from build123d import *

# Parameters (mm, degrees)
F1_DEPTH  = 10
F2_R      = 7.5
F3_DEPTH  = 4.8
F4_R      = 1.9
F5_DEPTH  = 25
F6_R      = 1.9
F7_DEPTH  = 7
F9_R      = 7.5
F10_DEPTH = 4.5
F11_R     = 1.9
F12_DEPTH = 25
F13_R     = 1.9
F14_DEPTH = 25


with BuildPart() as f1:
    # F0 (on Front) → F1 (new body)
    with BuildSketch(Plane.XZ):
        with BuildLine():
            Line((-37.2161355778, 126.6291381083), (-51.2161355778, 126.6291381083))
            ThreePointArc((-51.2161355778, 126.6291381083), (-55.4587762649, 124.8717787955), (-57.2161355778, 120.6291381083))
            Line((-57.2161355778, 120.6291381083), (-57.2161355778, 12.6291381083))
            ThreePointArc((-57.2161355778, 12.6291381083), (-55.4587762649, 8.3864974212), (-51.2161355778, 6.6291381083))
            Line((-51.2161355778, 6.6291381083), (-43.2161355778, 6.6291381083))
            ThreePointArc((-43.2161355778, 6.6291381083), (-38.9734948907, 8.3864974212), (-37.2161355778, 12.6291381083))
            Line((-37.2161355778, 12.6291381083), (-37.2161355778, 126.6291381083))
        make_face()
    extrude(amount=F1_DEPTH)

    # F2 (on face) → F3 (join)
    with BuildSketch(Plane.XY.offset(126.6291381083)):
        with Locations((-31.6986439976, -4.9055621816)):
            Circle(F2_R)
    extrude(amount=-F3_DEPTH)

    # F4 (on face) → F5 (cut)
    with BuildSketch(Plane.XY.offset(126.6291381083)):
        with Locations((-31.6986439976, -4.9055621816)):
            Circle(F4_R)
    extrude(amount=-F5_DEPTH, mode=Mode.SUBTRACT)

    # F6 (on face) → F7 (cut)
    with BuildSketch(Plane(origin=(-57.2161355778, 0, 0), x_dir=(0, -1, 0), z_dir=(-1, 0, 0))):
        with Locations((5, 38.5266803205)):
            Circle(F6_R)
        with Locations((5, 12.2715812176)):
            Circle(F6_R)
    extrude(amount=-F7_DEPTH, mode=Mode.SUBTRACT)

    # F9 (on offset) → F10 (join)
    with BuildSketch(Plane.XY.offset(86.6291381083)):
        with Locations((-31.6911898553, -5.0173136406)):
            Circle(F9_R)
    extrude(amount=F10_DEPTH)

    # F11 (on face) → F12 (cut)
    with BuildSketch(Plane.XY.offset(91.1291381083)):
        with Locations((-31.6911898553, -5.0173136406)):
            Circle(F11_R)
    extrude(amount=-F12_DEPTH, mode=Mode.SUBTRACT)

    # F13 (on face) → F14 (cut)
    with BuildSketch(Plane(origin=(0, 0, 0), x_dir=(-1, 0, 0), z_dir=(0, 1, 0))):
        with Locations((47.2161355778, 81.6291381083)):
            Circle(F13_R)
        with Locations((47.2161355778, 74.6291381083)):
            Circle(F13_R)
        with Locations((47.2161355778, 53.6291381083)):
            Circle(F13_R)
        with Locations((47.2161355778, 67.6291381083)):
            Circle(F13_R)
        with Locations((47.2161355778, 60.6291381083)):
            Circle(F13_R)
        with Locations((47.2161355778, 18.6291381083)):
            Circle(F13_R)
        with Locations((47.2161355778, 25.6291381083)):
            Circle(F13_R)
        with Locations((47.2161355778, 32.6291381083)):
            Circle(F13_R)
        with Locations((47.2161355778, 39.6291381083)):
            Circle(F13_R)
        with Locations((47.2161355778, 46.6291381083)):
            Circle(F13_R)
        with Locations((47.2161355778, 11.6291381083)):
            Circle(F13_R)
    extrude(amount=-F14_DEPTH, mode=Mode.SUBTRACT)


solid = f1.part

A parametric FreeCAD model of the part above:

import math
import FreeCAD as App
import Part
import Sketcher

V = App.Vector
Q = App.Units.Quantity

doc = App.newDocument("Part")
body = doc.addObject("PartDesign::Body", "Body")

sketch1 = body.newObject("Sketcher::SketchObject", "Sketch")
sketch1.AttachmentSupport = (doc.getObject("XZ_Plane"), [""])
sketch1.MapMode = "FlatFace"
sketch1.addGeometry(Part.LineSegment(V(-37, 127, 0), V(-51, 127, 0)), False)
sketch1.addGeometry(Part.ArcOfCircle(Part.Circle(V(-51, 121, 0), V(0, 0, 1), 6), math.radians(90), math.radians(180)), False)
sketch1.addGeometry(Part.LineSegment(V(-57, 121, 0), V(-57, 13, 0)), False)
sketch1.addGeometry(Part.ArcOfCircle(Part.Circle(V(-51, 13, 0), V(0, 0, 1), 6), math.radians(180), math.radians(270)), False)
sketch1.addGeometry(Part.LineSegment(V(-51, 7, 0), V(-43, 7, 0)), False)
sketch1.addGeometry(Part.ArcOfCircle(Part.Circle(V(-43, 13, 0), V(0, 0, 1), 6), math.radians(-90), math.radians(0)), False)
sketch1.addGeometry(Part.LineSegment(V(-37, 13, 0), V(-37, 127, 0)), False)
sketch1.addConstraint(Sketcher.Constraint("Tangent", 0, 2, 1, 1))
sketch1.addConstraint(Sketcher.Constraint("Tangent", 1, 2, 2, 1))
sketch1.addConstraint(Sketcher.Constraint("Tangent", 2, 2, 3, 1))
sketch1.addConstraint(Sketcher.Constraint("Tangent", 3, 2, 4, 1))
sketch1.addConstraint(Sketcher.Constraint("Tangent", 4, 2, 5, 1))
sketch1.addConstraint(Sketcher.Constraint("Tangent", 5, 2, 6, 1))
sketch1.addConstraint(Sketcher.Constraint("Coincident", 6, 2, 0, 1))
sketch1.addConstraint(Sketcher.Constraint("Horizontal", 0))
sketch1.addConstraint(Sketcher.Constraint("Vertical", 2))
sketch1.addConstraint(Sketcher.Constraint("Horizontal", 4))
sketch1.addConstraint(Sketcher.Constraint("Vertical", 6))
sketch1.addConstraint(Sketcher.Constraint("Equal", 1, 3))
sketch1.addConstraint(Sketcher.Constraint("Equal", 3, 5))
sketch1.addConstraint(Sketcher.Constraint("Radius", 1, Q("6 mm")))
sketch1.addConstraint(Sketcher.Constraint("DistanceX", 0, 2, 0, 1, Q("14 mm")))
sketch1.addConstraint(Sketcher.Constraint("DistanceY", 2, 2, 2, 1, Q("108 mm")))
sketch1.addConstraint(Sketcher.Constraint("DistanceY", -1, 1, 1, 3, Q("120.629138 mm")))
sketch1.addConstraint(Sketcher.Constraint("DistanceX", 1, 3, -1, 1, Q("51.216136 mm")))
pad1 = body.newObject("PartDesign::Pad", "Pad")
pad1.Profile = sketch1
pad1.Length = 10

sketch2 = body.newObject("Sketcher::SketchObject", "Sketch001")
sketch2.AttachmentSupport = (doc.getObject("XY_Plane"), [""])
sketch2.MapMode = "FlatFace"
sketch2.AttachmentOffset = App.Placement(V(0, 0, 126.629138), App.Rotation())
sketch2.addGeometry(Part.Circle(V(-32, -5, 0), V(0, 0, 1), 8), False)
sketch2.addConstraint(Sketcher.Constraint("Diameter", 0, Q("15 mm")))
sketch2.addConstraint(Sketcher.Constraint("DistanceX", 0, 3, -1, 1, Q("31.698644 mm")))
sketch2.addConstraint(Sketcher.Constraint("DistanceY", 0, 3, -1, 1, Q("4.905562 mm")))
pad2 = body.newObject("PartDesign::Pad", "Pad001")
pad2.Profile = sketch2
pad2.Length = 4.8
pad2.Reversed = True

sketch3 = body.newObject("Sketcher::SketchObject", "Sketch002")
sketch3.AttachmentSupport = (doc.getObject("XY_Plane"), [""])
sketch3.MapMode = "FlatFace"
sketch3.AttachmentOffset = App.Placement(V(0, 0, 126.629138), App.Rotation())
sketch3.addGeometry(Part.Circle(V(-31.7, -4.9, 0), V(0, 0, 1), 1.9), False)
sketch3.addConstraint(Sketcher.Constraint("Diameter", 0, Q("3.8 mm")))
sketch3.addConstraint(Sketcher.Constraint("DistanceX", 0, 3, -1, 1, Q("31.698644 mm")))
sketch3.addConstraint(Sketcher.Constraint("DistanceY", 0, 3, -1, 1, Q("4.905562 mm")))
pocket1 = body.newObject("PartDesign::Pocket", "Pocket")
pocket1.Profile = sketch3
pocket1.Length = 25

sketch4 = body.newObject("Sketcher::SketchObject", "Sketch003")
sketch4.AttachmentSupport = (doc.getObject("YZ_Plane"), [""])
sketch4.MapMode = "FlatFace"
sketch4.AttachmentOffset = App.Placement(V(0, 0, -57.216136), App.Rotation())
sketch4.addGeometry(Part.Circle(V(-5, 38.5, 0), V(0, 0, 1), 1.9), False)
sketch4.addGeometry(Part.Circle(V(-5, 12.3, 0), V(0, 0, 1), 1.9), False)
sketch4.addConstraint(Sketcher.Constraint("Equal", 0, 1))
sketch4.addConstraint(Sketcher.Constraint("Vertical", 0, 3, 1, 3))
sketch4.addConstraint(Sketcher.Constraint("Diameter", 0, Q("3.8 mm")))
sketch4.addConstraint(Sketcher.Constraint("DistanceX", 0, 3, -1, 1, Q("5 mm")))
sketch4.addConstraint(Sketcher.Constraint("DistanceY", 1, 3, 0, 3, Q("26.255099 mm")))
sketch4.addConstraint(Sketcher.Constraint("DistanceY", -1, 1, 0, 3, Q("38.52668 mm")))
pocket2 = body.newObject("PartDesign::Pocket", "Pocket001")
pocket2.Profile = sketch4
pocket2.Length = 7
pocket2.Reversed = True

sketch5 = body.newObject("Sketcher::SketchObject", "Sketch004")
sketch5.AttachmentSupport = (doc.getObject("XY_Plane"), [""])
sketch5.MapMode = "FlatFace"
sketch5.AttachmentOffset = App.Placement(V(0, 0, 86.629138), App.Rotation())
sketch5.addGeometry(Part.Circle(V(-32, -5, 0), V(0, 0, 1), 8), False)
sketch5.addConstraint(Sketcher.Constraint("Diameter", 0, Q("15 mm")))
sketch5.addConstraint(Sketcher.Constraint("DistanceX", 0, 3, -1, 1, Q("31.69119 mm")))
sketch5.addConstraint(Sketcher.Constraint("DistanceY", 0, 3, -1, 1, Q("5.017314 mm")))
pad3 = body.newObject("PartDesign::Pad", "Pad002")
pad3.Profile = sketch5
pad3.Length = 4.5

sketch6 = body.newObject("Sketcher::SketchObject", "Sketch005")
sketch6.AttachmentSupport = (doc.getObject("XY_Plane"), [""])
sketch6.MapMode = "FlatFace"
sketch6.AttachmentOffset = App.Placement(V(0, 0, 91.129138), App.Rotation())
sketch6.addGeometry(Part.Circle(V(-31.7, -5, 0), V(0, 0, 1), 1.9), False)
sketch6.addConstraint(Sketcher.Constraint("Diameter", 0, Q("3.8 mm")))
sketch6.addConstraint(Sketcher.Constraint("DistanceX", 0, 3, -1, 1, Q("31.69119 mm")))
sketch6.addConstraint(Sketcher.Constraint("DistanceY", 0, 3, -1, 1, Q("5.017314 mm")))
pocket3 = body.newObject("PartDesign::Pocket", "Pocket002")
pocket3.Profile = sketch6
pocket3.Length = 25

sketch7 = body.newObject("Sketcher::SketchObject", "Sketch006")
sketch7.AttachmentSupport = (doc.getObject("XZ_Plane"), [""])
sketch7.MapMode = "FlatFace"
sketch7.addGeometry(Part.Circle(V(-47.2, 81.6, 0), V(0, 0, 1), 1.9), False)
sketch7.addGeometry(Part.Circle(V(-47.2, 74.6, 0), V(0, 0, 1), 1.9), False)
sketch7.addGeometry(Part.Circle(V(-47.2, 53.6, 0), V(0, 0, 1), 1.9), False)
sketch7.addGeometry(Part.Circle(V(-47.2, 67.6, 0), V(0, 0, 1), 1.9), False)
sketch7.addGeometry(Part.Circle(V(-47.2, 60.6, 0), V(0, 0, 1), 1.9), False)
sketch7.addGeometry(Part.Circle(V(-47.2, 18.6, 0), V(0, 0, 1), 1.9), False)
sketch7.addGeometry(Part.Circle(V(-47.2, 25.6, 0), V(0, 0, 1), 1.9), False)
sketch7.addGeometry(Part.Circle(V(-47.2, 32.6, 0), V(0, 0, 1), 1.9), False)
sketch7.addGeometry(Part.Circle(V(-47.2, 39.6, 0), V(0, 0, 1), 1.9), False)
sketch7.addGeometry(Part.Circle(V(-47.2, 46.6, 0), V(0, 0, 1), 1.9), False)
sketch7.addGeometry(Part.Circle(V(-47.2, 11.6, 0), V(0, 0, 1), 1.9), False)
sketch7.addConstraint(Sketcher.Constraint("Equal", 0, 1))
sketch7.addConstraint(Sketcher.Constraint("Equal", 1, 2))
sketch7.addConstraint(Sketcher.Constraint("Equal", 2, 3))
sketch7.addConstraint(Sketcher.Constraint("Equal", 3, 4))
sketch7.addConstraint(Sketcher.Constraint("Equal", 4, 5))
sketch7.addConstraint(Sketcher.Constraint("Equal", 5, 6))
sketch7.addConstraint(Sketcher.Constraint("Equal", 6, 7))
sketch7.addConstraint(Sketcher.Constraint("Equal", 7, 8))
sketch7.addConstraint(Sketcher.Constraint("Equal", 8, 9))
sketch7.addConstraint(Sketcher.Constraint("Equal", 9, 10))
sketch7.addConstraint(Sketcher.Constraint("Vertical", 0, 3, 1, 3))
sketch7.addConstraint(Sketcher.Constraint("Vertical", 1, 3, 2, 3))
sketch7.addConstraint(Sketcher.Constraint("Vertical", 2, 3, 3, 3))
sketch7.addConstraint(Sketcher.Constraint("Vertical", 3, 3, 4, 3))
sketch7.addConstraint(Sketcher.Constraint("Vertical", 4, 3, 5, 3))
sketch7.addConstraint(Sketcher.Constraint("Vertical", 5, 3, 6, 3))
sketch7.addConstraint(Sketcher.Constraint("Vertical", 6, 3, 7, 3))
sketch7.addConstraint(Sketcher.Constraint("Vertical", 7, 3, 8, 3))
sketch7.addConstraint(Sketcher.Constraint("Vertical", 8, 3, 9, 3))
sketch7.addConstraint(Sketcher.Constraint("Vertical", 9, 3, 10, 3))
sketch7.addConstraint(Sketcher.Constraint("Diameter", 0, Q("3.8 mm")))
sketch7.addConstraint(Sketcher.Constraint("DistanceY", 1, 3, 0, 3, Q("7 mm")))
sketch7.addConstraint(Sketcher.Constraint("DistanceY", 2, 3, 1, 3, Q("21 mm")))
sketch7.addConstraint(Sketcher.Constraint("DistanceY", 3, 3, 1, 3, Q("7 mm")))
sketch7.addConstraint(Sketcher.Constraint("DistanceY", 2, 3, 4, 3, Q("7 mm")))
sketch7.addConstraint(Sketcher.Constraint("DistanceY", 5, 3, 2, 3, Q("35 mm")))
sketch7.addConstraint(Sketcher.Constraint("DistanceY", 5, 3, 6, 3, Q("7 mm")))
sketch7.addConstraint(Sketcher.Constraint("DistanceY", 6, 3, 7, 3, Q("7 mm")))
sketch7.addConstraint(Sketcher.Constraint("DistanceY", 7, 3, 8, 3, Q("7 mm")))
sketch7.addConstraint(Sketcher.Constraint("DistanceY", 9, 3, 2, 3, Q("7 mm")))
sketch7.addConstraint(Sketcher.Constraint("DistanceY", 10, 3, 5, 3, Q("7 mm")))
sketch7.addConstraint(Sketcher.Constraint("DistanceY", -1, 1, 0, 3, Q("81.629138 mm")))
sketch7.addConstraint(Sketcher.Constraint("DistanceX", 0, 3, -1, 1, Q("47.216136 mm")))
pocket4 = body.newObject("PartDesign::Pocket", "Pocket003")
pocket4.Profile = sketch7
pocket4.Length = 25
pocket4.Reversed = True

doc.recompute()
